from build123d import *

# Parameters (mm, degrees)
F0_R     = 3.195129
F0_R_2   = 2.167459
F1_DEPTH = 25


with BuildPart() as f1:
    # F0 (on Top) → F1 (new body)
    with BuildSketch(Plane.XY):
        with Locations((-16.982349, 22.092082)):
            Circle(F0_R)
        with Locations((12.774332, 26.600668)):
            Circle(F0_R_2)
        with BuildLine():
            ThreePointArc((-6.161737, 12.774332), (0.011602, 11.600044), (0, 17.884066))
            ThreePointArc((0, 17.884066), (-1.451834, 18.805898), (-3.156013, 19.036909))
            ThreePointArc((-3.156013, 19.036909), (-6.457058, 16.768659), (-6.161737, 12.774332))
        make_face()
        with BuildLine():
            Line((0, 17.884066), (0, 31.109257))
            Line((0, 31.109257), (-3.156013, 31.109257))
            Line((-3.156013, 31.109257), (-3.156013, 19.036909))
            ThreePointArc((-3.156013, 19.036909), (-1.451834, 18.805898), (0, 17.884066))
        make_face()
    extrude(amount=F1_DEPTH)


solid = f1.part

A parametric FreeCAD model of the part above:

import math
import FreeCAD as App
import Part
import Sketcher

V = App.Vector
Q = App.Units.Quantity

doc = App.newDocument("Part")
params = doc.addObject("Spreadsheet::Sheet", "Params")
for row, (alias, value) in enumerate([
    ("pad1_length", "25 mm"),
], start=1):
    params.set(f"A{row}", alias)
    params.set(f"B{row}", "=" + value)
    params.setAlias(f"B{row}", alias)

body = doc.addObject("PartDesign::Body", "Body")
body.AllowCompound = True

# Sketch on XY plane
sketch1 = doc.addObject("Sketcher::SketchObject", "Sketch")
body.addObject(sketch1)
sketch1.AttachmentSupport = (doc.XY_Plane, [""])
sketch1.MapMode = "FlatFace"
sketch1.addGeometry([
    Part.Circle(V(-16.982349, 22.092082, 0), V(0, 0, 1), 3.195129),  # 0
    Part.Circle(V(12.774332, 26.600668, 0), V(0, 0, 1), 2.167459),  # 1
    Part.ArcOfCircle(Part.Circle(V(-2.589994, 14.737262, 0), V(0, 0, 1), 4.075591), math.radians(-151.208029), math.radians(50.543721)),  # 2
    Part.LineSegment(V(0, 17.884066, 0), V(0, 31.109257, 0)),  # 3
    Part.LineSegment(V(0, 31.109257, 0), V(-3.156013, 31.109257, 0)),  # 4
    Part.LineSegment(V(-3.156013, 31.109257, 0), V(-3.156013, 19.036909, 0)),  # 5
    Part.ArcOfCircle(Part.Circle(V(-2.831613, 15.028626, 0), V(0, 0, 1), 4.021389), math.radians(94.627005), math.radians(214.095637)),  # 6
], False)
sketch1.addConstraint([
    Sketcher.Constraint("Coincident", 2, 2, 3, 1),
    Sketcher.Constraint("Coincident", 3, 2, 4, 1),
    Sketcher.Constraint("Coincident", 4, 2, 5, 1),
    Sketcher.Constraint("Coincident", 5, 2, 6, 1),
    Sketcher.Constraint("Coincident", 6, 2, 2, 1),
    Sketcher.Constraint("Vertical", 3),
    Sketcher.Constraint("Horizontal", 4),
    Sketcher.Constraint("Vertical", 5),
    Sketcher.Constraint("PointOnObject", 2, 2, -2),
    Sketcher.Constraint("Diameter", 0, Q("6.390258 mm")),
    Sketcher.Constraint("Radius", 2, Q("4.075591 mm")),
    Sketcher.Constraint("Radius", 6, Q("4.021389 mm")),
    Sketcher.Constraint("Diameter", 1, Q("4.334918 mm")),
    Sketcher.Constraint("DistanceY", 3, 1, 3, 2, Q("13.225191 mm")),
    Sketcher.Constraint("DistanceX", 4, 2, 6, 3, Q("0.3244 mm")),
    Sketcher.Constraint("DistanceX", 4, 2, 4, 1, Q("3.156013 mm")),
    Sketcher.Constraint("DistanceY", 5, 2, 5, 1, Q("12.072348 mm")),
    Sketcher.Constraint("DistanceX", 0, 3, -1, 1, Q("16.982349 mm")),
    Sketcher.Constraint("DistanceX", -1, 1, 1, 3, Q("12.774332 mm")),
    Sketcher.Constraint("DistanceY", -1, 1, 5, 2, Q("19.036909 mm")),
    Sketcher.Constraint("DistanceY", 2, 3, 0, 3, Q("7.35482 mm")),
    Sketcher.Constraint("DistanceX", 6, 3, 2, 3, Q("0.241618 mm")),
    Sketcher.Constraint("DistanceY", 1, 3, 3, 2, Q("4.508589 mm")),
])
pad1 = doc.addObject("PartDesign::Pad", "Pad")
body.addObject(pad1)
pad1.Profile = sketch1
pad1.setExpression("Length", "Params.pad1_length")

doc.recompute()
